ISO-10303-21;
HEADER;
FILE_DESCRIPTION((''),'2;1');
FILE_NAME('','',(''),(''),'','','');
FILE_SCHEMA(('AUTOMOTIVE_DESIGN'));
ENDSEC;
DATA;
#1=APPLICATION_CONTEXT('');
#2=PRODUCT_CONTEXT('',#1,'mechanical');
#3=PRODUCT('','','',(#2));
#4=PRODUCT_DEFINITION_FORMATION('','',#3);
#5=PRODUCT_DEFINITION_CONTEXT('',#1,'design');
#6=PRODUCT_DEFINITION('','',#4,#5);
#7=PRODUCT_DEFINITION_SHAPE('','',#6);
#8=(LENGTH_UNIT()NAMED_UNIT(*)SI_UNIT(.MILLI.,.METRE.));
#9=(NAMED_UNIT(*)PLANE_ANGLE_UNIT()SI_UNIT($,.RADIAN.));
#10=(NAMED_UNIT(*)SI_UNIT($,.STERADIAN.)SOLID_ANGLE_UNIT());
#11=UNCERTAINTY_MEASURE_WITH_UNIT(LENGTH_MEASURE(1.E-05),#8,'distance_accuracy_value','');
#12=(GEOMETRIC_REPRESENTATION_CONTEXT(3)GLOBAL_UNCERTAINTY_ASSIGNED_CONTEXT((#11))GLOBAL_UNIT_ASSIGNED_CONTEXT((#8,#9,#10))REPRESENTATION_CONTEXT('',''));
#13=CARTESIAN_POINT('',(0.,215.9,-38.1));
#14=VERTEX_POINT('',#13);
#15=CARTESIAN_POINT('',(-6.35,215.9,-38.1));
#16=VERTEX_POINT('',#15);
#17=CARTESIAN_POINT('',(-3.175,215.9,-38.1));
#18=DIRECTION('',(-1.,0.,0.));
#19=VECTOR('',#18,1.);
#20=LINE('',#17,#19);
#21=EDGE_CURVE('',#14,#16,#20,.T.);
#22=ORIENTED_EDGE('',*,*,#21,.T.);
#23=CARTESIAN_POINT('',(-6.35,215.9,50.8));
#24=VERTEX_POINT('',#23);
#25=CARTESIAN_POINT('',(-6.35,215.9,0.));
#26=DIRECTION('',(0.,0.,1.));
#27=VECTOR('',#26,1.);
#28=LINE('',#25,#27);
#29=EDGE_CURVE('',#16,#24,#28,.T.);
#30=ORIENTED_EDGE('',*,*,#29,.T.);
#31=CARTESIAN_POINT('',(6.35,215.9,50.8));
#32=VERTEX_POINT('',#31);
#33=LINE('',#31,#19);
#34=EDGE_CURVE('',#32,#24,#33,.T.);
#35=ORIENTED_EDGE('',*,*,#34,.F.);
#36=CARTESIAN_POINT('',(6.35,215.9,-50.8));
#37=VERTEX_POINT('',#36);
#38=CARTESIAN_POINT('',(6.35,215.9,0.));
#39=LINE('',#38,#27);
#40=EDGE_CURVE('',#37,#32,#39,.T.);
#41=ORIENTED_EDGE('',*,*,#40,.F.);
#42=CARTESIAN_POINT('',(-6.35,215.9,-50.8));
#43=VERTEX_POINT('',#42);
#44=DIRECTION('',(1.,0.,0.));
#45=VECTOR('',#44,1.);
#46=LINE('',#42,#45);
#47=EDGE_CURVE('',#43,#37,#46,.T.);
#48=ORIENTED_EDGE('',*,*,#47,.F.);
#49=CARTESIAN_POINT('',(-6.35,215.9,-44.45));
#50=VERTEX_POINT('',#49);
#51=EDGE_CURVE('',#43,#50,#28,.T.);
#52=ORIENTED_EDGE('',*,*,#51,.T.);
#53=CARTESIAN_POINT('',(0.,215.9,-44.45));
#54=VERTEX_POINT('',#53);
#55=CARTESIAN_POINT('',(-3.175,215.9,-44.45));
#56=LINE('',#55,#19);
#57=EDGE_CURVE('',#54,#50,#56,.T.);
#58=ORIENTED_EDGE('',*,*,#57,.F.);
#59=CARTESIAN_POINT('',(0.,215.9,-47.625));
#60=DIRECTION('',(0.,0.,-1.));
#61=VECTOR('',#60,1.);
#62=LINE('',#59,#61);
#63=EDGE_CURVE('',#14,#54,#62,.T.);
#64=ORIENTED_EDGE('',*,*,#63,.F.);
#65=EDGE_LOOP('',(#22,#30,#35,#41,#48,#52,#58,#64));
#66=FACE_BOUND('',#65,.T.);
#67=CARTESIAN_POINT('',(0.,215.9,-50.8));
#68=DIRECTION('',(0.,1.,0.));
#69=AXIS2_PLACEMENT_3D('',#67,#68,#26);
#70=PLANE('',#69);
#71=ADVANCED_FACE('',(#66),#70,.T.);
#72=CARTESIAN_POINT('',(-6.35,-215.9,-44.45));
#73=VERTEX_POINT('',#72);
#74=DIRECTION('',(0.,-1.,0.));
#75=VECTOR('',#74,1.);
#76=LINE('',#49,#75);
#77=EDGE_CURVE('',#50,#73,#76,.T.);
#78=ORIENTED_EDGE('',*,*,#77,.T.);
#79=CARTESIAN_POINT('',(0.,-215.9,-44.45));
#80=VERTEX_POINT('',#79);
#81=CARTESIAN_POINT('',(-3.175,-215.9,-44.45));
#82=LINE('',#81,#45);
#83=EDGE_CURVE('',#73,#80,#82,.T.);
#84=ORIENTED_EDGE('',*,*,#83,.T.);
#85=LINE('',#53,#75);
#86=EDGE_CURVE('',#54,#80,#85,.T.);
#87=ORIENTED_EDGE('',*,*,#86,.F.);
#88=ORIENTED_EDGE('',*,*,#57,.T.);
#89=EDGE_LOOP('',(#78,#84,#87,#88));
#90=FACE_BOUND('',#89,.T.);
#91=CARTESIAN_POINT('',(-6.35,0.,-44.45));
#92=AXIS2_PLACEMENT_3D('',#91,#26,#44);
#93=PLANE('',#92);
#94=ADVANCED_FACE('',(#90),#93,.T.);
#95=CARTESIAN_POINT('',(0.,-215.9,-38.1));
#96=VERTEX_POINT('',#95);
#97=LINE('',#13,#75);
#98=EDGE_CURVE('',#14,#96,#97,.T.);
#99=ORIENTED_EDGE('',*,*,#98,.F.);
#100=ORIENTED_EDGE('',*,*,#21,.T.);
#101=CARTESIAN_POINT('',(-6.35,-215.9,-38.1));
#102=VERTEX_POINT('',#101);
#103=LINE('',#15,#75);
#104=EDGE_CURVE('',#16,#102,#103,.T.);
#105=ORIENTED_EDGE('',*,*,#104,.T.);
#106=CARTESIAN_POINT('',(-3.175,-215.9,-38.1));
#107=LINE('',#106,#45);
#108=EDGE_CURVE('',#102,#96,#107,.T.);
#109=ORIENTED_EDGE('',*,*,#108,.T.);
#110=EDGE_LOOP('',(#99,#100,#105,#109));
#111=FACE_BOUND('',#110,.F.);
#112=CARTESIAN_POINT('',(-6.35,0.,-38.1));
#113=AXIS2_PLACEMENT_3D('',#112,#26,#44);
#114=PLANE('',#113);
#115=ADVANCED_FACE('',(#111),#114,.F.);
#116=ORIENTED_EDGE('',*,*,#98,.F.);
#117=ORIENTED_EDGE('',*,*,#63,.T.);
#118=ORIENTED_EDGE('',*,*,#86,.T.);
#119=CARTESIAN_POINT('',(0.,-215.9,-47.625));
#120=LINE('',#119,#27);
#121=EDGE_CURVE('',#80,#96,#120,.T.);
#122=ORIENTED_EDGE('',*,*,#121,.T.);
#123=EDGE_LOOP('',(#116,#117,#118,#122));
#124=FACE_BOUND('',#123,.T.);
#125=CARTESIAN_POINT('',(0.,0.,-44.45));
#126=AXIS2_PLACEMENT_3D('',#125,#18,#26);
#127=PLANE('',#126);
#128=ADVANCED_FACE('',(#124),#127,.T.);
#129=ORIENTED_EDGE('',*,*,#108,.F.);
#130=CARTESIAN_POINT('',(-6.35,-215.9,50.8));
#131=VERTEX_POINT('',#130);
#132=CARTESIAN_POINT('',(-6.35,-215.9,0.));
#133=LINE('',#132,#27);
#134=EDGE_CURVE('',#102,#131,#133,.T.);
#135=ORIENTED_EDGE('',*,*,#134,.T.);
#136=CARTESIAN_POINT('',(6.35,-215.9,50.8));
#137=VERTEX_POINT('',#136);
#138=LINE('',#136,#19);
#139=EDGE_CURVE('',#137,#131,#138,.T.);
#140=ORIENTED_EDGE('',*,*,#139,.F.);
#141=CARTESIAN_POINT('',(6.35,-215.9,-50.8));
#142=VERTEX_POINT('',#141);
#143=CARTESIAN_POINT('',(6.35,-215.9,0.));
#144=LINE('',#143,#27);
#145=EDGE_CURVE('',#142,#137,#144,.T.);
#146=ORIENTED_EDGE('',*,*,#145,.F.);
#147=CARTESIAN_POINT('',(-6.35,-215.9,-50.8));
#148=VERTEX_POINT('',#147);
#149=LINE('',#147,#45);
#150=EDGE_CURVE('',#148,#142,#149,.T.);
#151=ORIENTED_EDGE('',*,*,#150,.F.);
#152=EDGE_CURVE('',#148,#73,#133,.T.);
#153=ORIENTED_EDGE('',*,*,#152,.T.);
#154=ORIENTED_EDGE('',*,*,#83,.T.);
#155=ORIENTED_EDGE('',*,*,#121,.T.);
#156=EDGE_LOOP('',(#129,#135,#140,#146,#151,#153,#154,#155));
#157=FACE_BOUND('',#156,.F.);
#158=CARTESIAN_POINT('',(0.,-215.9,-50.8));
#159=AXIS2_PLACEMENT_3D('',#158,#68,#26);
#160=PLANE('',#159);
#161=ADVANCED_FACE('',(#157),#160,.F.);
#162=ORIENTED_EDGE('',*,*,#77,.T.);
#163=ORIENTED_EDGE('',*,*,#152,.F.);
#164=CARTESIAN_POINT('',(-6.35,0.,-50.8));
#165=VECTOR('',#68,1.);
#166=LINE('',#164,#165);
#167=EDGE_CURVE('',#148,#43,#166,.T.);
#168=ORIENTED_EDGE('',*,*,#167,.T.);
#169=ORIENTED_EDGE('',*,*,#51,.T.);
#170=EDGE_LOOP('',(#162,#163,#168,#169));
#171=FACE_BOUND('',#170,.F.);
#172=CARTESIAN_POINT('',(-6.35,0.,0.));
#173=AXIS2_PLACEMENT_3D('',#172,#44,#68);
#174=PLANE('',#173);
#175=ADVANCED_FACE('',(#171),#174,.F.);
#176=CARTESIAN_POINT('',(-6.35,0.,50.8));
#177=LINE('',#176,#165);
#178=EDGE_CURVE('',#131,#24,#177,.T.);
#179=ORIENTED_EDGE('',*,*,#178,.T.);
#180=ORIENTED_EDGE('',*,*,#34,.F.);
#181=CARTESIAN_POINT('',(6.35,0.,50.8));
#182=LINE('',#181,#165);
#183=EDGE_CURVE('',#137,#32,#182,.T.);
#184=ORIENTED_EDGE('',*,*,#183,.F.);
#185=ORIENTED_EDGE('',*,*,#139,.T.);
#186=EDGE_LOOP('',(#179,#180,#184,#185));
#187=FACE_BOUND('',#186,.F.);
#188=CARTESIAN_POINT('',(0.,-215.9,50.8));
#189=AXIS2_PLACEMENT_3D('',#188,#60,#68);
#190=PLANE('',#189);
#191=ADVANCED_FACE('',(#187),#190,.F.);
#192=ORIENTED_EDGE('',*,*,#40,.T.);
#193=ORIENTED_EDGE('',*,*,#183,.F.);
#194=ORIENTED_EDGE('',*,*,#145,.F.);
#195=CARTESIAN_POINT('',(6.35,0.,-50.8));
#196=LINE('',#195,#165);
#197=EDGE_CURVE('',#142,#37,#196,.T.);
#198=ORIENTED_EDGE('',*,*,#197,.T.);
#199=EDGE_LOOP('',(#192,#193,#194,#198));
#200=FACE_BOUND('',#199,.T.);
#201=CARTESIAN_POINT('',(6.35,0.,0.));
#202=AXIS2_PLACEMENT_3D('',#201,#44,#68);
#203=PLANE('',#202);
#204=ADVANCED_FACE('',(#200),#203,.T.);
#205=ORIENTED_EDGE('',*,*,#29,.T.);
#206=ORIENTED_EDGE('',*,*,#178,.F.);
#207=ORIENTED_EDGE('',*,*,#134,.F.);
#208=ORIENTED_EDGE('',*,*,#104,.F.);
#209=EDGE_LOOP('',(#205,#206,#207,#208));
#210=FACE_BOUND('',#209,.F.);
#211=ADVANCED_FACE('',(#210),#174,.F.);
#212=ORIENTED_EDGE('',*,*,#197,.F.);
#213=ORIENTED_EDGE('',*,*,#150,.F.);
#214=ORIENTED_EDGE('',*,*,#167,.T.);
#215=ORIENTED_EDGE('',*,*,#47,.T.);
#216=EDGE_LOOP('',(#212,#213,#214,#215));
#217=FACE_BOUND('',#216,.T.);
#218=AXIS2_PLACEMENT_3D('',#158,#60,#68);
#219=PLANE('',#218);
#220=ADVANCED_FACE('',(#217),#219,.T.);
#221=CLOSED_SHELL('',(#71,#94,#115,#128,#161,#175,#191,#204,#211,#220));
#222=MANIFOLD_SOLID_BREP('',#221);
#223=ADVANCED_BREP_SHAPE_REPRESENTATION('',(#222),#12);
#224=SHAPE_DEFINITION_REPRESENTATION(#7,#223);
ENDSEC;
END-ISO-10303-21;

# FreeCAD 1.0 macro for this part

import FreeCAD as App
import Part
import Sketcher

V = App.Vector
Q = App.Units.Quantity


def add_polygon(sketch, points):
    """Adds a closed chain of lines whose ends are joined by coincident constraints."""
    first, n = sketch.GeometryCount, len(points)
    for a, b in zip(points, points[1:] + points[:1]):
        sketch.addGeometry(Part.LineSegment(App.Vector(*a, 0), App.Vector(*b, 0)), False)
    for i in range(n):
        sketch.addConstraint(Sketcher.Constraint("Coincident", first + i, 2, first + (i + 1) % n, 1))

doc = App.newDocument("Part")
body = doc.addObject("PartDesign::Body", "Body")

sketch1 = body.newObject("Sketcher::SketchObject", "Sketch")
sketch1.AttachmentSupport = (doc.getObject("YZ_Plane"), [""])
sketch1.MapMode = "FlatFace"
add_polygon(sketch1, [(-215.9, 50.8), (-215.9, -50.8), (215.9, -50.8), (215.9, 50.8)])
sketch1.addConstraint(Sketcher.Constraint("Vertical", 0))
sketch1.addConstraint(Sketcher.Constraint("Horizontal", 1))
sketch1.addConstraint(Sketcher.Constraint("Vertical", 2))
sketch1.addConstraint(Sketcher.Constraint("Horizontal", 3))
sketch1.addConstraint(Sketcher.Constraint("Symmetric", 0, 2, 2, 2, -1, 1))
sketch1.addConstraint(Sketcher.Constraint("DistanceX", 1, 1, 1, 2, Q("17 in")))
sketch1.addConstraint(Sketcher.Constraint("DistanceY", 0, 2, 0, 1, Q("4 in")))
pad1 = body.newObject("PartDesign::Pad", "Pad")
pad1.Profile = sketch1
pad1.Length = Q("0.5 in")
pad1.Midplane = True

sketch2 = body.newObject("Sketcher::SketchObject", "Sketch001")
sketch2.AttachmentSupport = (doc.getObject("XZ_Plane"), [""])
sketch2.MapMode = "FlatFace"
add_polygon(sketch2, [(-6.35, -38.1), (-6.35, -44.45), (0, -44.45), (0, -38.1)])
sketch2.addConstraint(Sketcher.Constraint("Vertical", 0))
sketch2.addConstraint(Sketcher.Constraint("Horizontal", 1))
sketch2.addConstraint(Sketcher.Constraint("Vertical", 2))
sketch2.addConstraint(Sketcher.Constraint("Horizontal", 3))
sketch2.addConstraint(Sketcher.Constraint("PointOnObject", 1, 2, -2))
sketch2.addConstraint(Sketcher.Constraint("Equal", 3, 0))
sketch2.addConstraint(Sketcher.Constraint("DistanceX", 1, 1, 1, 2, Q("0.25 in")))
sketch2.addConstraint(Sketcher.Constraint("DistanceY", 2, 2, -1, 1, Q("1.5 in")))
pocket1 = body.newObject("PartDesign::Pocket", "Pocket")
pocket1.Profile = sketch2
pocket1.Type = "ThroughAll"
pocket1.Midplane = True

doc.recompute()
